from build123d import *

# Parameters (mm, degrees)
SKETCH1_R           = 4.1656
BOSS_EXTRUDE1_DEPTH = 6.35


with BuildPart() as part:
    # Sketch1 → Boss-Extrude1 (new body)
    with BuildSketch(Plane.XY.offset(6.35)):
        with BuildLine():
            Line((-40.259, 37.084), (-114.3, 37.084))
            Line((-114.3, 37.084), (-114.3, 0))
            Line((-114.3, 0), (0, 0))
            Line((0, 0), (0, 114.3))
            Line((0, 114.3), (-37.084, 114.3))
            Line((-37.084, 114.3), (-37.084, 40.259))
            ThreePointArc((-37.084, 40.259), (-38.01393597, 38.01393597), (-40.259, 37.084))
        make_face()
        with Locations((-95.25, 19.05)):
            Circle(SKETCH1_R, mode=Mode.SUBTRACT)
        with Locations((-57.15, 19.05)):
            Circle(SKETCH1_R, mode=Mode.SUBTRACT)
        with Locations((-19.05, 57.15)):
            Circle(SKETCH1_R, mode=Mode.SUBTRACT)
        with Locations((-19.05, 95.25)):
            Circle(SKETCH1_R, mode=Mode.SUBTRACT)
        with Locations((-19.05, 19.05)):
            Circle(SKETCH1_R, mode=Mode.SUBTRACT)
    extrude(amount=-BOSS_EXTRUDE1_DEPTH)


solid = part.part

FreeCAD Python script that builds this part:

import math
import FreeCAD as App
import Part
import Sketcher

V = App.Vector
Q = App.Units.Quantity

doc = App.newDocument("Part")
body = doc.addObject("PartDesign::Body", "Body")

sketch1 = doc.addObject("Sketcher::SketchObject", "Sketch")
body.addObject(sketch1)
sketch1.AttachmentSupport = (doc.XY_Plane, [""])
sketch1.MapMode = "FlatFace"
sketch1.AttachmentOffset = App.Placement(V(0, 0, 0.25 * 25.4), App.Rotation())
sketch1.addGeometry(Part.LineSegment(V(-40.3, 37.1, 0), V(-114.3, 37.1, 0)), False)
sketch1.addGeometry(Part.LineSegment(V(-114.3, 37.1, 0), V(-114.3, 0, 0)), False)
sketch1.addGeometry(Part.LineSegment(V(-114.3, 0, 0), V(0, 0, 0)), False)
sketch1.addGeometry(Part.LineSegment(V(0, 0, 0), V(0, 114.3, 0)), False)
sketch1.addGeometry(Part.LineSegment(V(0, 114.3, 0), V(-37.1, 114.3, 0)), False)
sketch1.addGeometry(Part.LineSegment(V(-37.1, 114.3, 0), V(-37.1, 40.3, 0)), False)
sketch1.addGeometry(Part.ArcOfCircle(Part.Circle(V(-40.3, 40.3, 0), V(0, 0, 1), 3.2), math.radians(-90), math.radians(0)), False)
sketch1.addGeometry(Part.Circle(V(-95.2, 19.1, 0), V(0, 0, 1), 4.2), False)
sketch1.addGeometry(Part.Circle(V(-57.1, 19.1, 0), V(0, 0, 1), 4.2), False)
sketch1.addGeometry(Part.Circle(V(-19.1, 19.1, 0), V(0, 0, 1), 4.2), False)
sketch1.addGeometry(Part.Circle(V(-19.1, 57.1, 0), V(0, 0, 1), 4.2), False)
sketch1.addGeometry(Part.Circle(V(-19.1, 95.2, 0), V(0, 0, 1), 4.2), False)
sketch1.addConstraint(Sketcher.Constraint("Coincident", 0, 2, 1, 1))
sketch1.addConstraint(Sketcher.Constraint("Coincident", 1, 2, 2, 1))
sketch1.addConstraint(Sketcher.Constraint("Coincident", 2, 2, 3, 1))
sketch1.addConstraint(Sketcher.Constraint("Coincident", 3, 2, 4, 1))
sketch1.addConstraint(Sketcher.Constraint("Coincident", 4, 2, 5, 1))
sketch1.addConstraint(Sketcher.Constraint("Tangent", 5, 2, 6, 2))
sketch1.addConstraint(Sketcher.Constraint("Tangent", 6, 1, 0, 1))
sketch1.addConstraint(Sketcher.Constraint("Horizontal", 0))
sketch1.addConstraint(Sketcher.Constraint("Vertical", 1))
sketch1.addConstraint(Sketcher.Constraint("Horizontal", 2))
sketch1.addConstraint(Sketcher.Constraint("Vertical", 3))
sketch1.addConstraint(Sketcher.Constraint("Horizontal", 4))
sketch1.addConstraint(Sketcher.Constraint("Vertical", 5))
sketch1.addConstraint(Sketcher.Constraint("Coincident", 2, 2, -1, 1))
sketch1.addConstraint(Sketcher.Constraint("Equal", 7, 8))
sketch1.addConstraint(Sketcher.Constraint("Equal", 8, 9))
sketch1.addConstraint(Sketcher.Constraint("Equal", 9, 10))
sketch1.addConstraint(Sketcher.Constraint("Equal", 10, 11))
sketch1.addConstraint(Sketcher.Constraint("Horizontal", 7, 3, 8, 3))
sketch1.addConstraint(Sketcher.Constraint("Horizontal", 8, 3, 9, 3))
sketch1.addConstraint(Sketcher.Constraint("Vertical", 9, 3, 10, 3))
sketch1.addConstraint(Sketcher.Constraint("Vertical", 10, 3, 11, 3))
sketch1.addConstraint(Sketcher.Constraint("Equal", 4, 1))
sketch1.addConstraint(Sketcher.Constraint("Equal", 2, 3))
sketch1.addConstraint(Sketcher.Constraint("Diameter", 7, Q("0.328 in")))
sketch1.addConstraint(Sketcher.Constraint("DistanceX", 2, 1, 2, 2, Q("4.5 in")))
sketch1.addConstraint(Sketcher.Constraint("Radius", 6, Q("0.125 in")))
sketch1.addConstraint(Sketcher.Constraint("DistanceX", 7, 3, 9, 3, Q("3 in")))
sketch1.addConstraint(Sketcher.Constraint("DistanceY", 9, 3, 11, 3, Q("3 in")))
sketch1.addConstraint(Sketcher.Constraint("DistanceX", 4, 2, 4, 1, Q("1.46 in")))
sketch1.addConstraint(Sketcher.Constraint("DistanceX", 7, 3, 8, 3, Q("1.5 in")))
sketch1.addConstraint(Sketcher.Constraint("DistanceY", 9, 3, 10, 3, Q("1.5 in")))
sketch1.addConstraint(Sketcher.Constraint("DistanceX", 7, 3, -1, 1, Q("3.75 in")))
sketch1.addConstraint(Sketcher.Constraint("DistanceY", -1, 1, 7, 3, Q("0.75 in")))
pad1 = doc.addObject("PartDesign::Pad", "Pad")
body.addObject(pad1)
pad1.Profile = sketch1
pad1.Length = Q("0.25 in")
pad1.Reversed = True

doc.recompute()
